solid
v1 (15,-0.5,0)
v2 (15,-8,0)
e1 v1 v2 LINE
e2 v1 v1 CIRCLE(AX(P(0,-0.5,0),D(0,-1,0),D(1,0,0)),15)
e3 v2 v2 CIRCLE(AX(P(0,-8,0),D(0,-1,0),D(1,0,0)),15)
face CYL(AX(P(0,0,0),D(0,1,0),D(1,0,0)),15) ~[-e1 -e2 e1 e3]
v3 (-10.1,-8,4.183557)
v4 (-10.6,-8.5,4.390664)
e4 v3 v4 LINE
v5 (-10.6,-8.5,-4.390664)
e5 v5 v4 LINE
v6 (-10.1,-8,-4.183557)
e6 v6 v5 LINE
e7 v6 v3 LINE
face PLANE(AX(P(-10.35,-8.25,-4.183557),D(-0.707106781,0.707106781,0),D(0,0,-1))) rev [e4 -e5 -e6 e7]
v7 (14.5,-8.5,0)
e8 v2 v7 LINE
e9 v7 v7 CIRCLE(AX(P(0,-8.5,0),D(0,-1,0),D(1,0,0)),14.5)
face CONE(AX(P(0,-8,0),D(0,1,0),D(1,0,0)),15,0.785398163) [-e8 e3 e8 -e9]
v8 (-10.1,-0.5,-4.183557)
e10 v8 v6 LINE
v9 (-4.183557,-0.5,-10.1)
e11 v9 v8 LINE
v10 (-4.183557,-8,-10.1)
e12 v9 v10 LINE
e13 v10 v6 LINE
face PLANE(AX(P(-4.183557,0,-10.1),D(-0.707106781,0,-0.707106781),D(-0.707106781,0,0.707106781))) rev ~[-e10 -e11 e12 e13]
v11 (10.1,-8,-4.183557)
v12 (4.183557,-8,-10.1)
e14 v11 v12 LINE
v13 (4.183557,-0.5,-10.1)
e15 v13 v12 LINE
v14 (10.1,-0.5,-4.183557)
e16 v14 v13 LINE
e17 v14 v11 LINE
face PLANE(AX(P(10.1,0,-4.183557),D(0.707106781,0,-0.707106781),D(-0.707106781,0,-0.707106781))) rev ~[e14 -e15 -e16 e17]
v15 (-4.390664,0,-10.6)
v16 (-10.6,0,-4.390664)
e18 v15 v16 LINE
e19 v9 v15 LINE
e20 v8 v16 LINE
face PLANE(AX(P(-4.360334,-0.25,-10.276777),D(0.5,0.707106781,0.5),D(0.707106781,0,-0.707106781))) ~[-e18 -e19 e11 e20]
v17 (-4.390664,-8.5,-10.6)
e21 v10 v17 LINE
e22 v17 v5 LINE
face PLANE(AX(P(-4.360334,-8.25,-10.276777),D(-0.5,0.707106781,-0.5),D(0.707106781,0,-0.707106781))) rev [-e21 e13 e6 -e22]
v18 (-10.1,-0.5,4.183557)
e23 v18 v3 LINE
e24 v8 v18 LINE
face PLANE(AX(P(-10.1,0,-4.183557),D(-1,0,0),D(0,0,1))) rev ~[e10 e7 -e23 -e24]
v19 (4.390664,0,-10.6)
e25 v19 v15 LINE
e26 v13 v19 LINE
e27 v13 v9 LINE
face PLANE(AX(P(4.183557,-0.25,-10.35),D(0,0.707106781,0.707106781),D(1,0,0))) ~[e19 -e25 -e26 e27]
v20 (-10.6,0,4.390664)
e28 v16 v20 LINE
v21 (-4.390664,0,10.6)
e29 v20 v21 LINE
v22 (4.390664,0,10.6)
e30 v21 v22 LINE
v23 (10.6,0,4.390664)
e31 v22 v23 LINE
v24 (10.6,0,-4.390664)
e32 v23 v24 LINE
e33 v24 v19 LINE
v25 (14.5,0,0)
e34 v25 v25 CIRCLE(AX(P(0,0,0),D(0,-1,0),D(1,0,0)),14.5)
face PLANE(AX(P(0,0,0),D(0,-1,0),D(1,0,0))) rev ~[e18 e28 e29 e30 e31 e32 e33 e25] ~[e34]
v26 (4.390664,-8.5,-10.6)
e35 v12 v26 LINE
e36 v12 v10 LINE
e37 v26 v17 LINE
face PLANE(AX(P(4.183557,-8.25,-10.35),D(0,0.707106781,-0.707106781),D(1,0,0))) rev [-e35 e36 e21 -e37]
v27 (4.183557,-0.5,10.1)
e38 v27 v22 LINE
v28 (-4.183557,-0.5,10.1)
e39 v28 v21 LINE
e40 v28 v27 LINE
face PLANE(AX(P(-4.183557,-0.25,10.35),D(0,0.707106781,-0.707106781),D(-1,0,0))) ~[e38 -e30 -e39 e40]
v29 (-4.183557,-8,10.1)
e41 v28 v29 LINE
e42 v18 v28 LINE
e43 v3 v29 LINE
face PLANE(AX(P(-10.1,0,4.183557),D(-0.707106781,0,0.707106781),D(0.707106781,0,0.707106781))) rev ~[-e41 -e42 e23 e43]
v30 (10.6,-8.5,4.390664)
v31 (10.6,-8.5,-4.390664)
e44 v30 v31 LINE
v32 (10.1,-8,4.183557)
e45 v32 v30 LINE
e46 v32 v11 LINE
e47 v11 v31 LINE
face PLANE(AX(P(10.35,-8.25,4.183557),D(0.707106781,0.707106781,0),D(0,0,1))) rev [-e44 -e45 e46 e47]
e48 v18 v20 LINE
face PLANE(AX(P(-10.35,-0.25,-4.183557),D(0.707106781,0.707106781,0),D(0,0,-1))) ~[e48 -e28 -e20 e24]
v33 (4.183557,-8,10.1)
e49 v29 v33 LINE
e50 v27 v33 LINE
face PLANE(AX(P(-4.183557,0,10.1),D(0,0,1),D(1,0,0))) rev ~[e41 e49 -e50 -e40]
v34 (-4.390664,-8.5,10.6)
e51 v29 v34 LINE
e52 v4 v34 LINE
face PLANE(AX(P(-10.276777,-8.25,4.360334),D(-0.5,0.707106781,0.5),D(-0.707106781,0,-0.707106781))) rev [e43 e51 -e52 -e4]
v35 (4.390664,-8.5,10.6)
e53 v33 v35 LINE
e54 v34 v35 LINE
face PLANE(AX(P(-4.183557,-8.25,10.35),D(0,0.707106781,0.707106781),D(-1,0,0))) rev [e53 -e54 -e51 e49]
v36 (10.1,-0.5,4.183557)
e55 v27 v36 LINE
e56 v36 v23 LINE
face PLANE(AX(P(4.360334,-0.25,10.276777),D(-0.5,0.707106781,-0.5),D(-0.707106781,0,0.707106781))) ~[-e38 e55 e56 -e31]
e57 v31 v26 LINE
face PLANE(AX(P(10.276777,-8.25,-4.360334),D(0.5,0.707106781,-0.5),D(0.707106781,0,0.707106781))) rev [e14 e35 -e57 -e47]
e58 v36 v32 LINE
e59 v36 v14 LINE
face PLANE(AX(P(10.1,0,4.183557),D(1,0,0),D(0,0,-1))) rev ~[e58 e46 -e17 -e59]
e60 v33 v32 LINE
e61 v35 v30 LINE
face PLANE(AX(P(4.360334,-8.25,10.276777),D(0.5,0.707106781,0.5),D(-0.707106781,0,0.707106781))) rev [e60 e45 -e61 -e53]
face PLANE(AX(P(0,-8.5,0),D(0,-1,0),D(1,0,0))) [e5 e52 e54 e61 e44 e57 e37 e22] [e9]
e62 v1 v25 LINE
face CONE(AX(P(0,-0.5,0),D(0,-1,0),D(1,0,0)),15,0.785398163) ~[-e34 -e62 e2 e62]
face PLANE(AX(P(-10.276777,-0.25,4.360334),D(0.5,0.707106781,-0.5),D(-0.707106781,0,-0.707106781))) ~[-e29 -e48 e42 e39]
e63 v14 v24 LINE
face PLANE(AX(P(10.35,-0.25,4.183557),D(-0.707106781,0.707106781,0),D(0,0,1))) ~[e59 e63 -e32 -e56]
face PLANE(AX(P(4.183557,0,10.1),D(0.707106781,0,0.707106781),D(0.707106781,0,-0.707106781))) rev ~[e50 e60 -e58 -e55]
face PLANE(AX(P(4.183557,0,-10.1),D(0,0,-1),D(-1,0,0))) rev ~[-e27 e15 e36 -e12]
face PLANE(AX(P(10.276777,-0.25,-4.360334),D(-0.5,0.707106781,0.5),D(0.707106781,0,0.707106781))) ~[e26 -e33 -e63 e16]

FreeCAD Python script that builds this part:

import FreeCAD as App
import Part
import Sketcher
from FreeCAD import Vector
Q = App.Units.Quantity


def edges_at(feature, points):
    """Names of the edges that pass closest to the given points."""
    edges = feature.Shape.Edges
    near = lambda p: min(range(len(edges)), key=lambda i: edges[i].distToShape(Part.Vertex(*p))[0])
    return sorted({f"Edge{near(p) + 1}" for p in points})


def add_polygon(sketch, points):
    """Adds a closed chain of lines whose ends are joined by coincident constraints."""
    first, n = sketch.GeometryCount, len(points)
    for a, b in zip(points, points[1:] + points[:1]):
        sketch.addGeometry(Part.LineSegment(App.Vector(*a, 0), App.Vector(*b, 0)), False)
    for i in range(n):
        sketch.addConstraint(Sketcher.Constraint("Coincident", first + i, 2, first + (i + 1) % n, 1))

doc = App.newDocument("Part")
params = doc.addObject("Spreadsheet::Sheet", "Params")
for row, (alias, value) in enumerate([
    ("sketch1_diameter", "30 mm"),
    ("pad1_length", "8.5 mm"),
    ("chamfer_size", "0.5 mm"),
], start=1):
    params.set(f"A{row}", alias)
    params.set(f"B{row}", "=" + value)
    params.setAlias(f"B{row}", alias)

body = doc.addObject("PartDesign::Body", "Body")

# Sketch on XZ plane
sketch1 = doc.addObject("Sketcher::SketchObject", "Sketch")
body.addObject(sketch1)
sketch1.AttachmentSupport = (doc.XZ_Plane, [""])
sketch1.MapMode = "FlatFace"
sketch1.addGeometry(Part.Circle(Vector(0, 0, 0), Vector(0, 0, 1), 15), False)  # 0
add_polygon(sketch1, [(4.183557, -10.1), (-4.183557, -10.1), (-10.1, -4.183557), (-10.1, 4.183557), (-4.183557, 10.1), (4.183557, 10.1), (10.1, 4.183557), (10.1, -4.183557)])  # lines 1-8
sketch1.addConstraint([
    Sketcher.Constraint("Horizontal", 1),
    Sketcher.Constraint("Vertical", 3),
    Sketcher.Constraint("Horizontal", 5),
    Sketcher.Constraint("Vertical", 7),
    Sketcher.Constraint("Coincident", 0, 3, -1, 1),
    Sketcher.Constraint("Symmetric", 1, 2, 5, 2, -1, 1),
    Sketcher.Constraint("Symmetric", 2, 2, 6, 2, -1, 1),
    Sketcher.Constraint("Perpendicular", 2, 4),
    Sketcher.Constraint("Perpendicular", 6, 8),
    Sketcher.Constraint("Horizontal", 3, 2, 6, 2),
    Sketcher.Constraint("Horizontal", 2, 2, 7, 2),
    Sketcher.Constraint("Vertical", 1, 2, 4, 2),
    Sketcher.Constraint("Equal", 5, 3),
    Sketcher.Constraint("Diameter", 0, Q("30 mm")),
    Sketcher.Constraint("DistanceY", 1, 2, -1, 1, Q("10.1 mm")),
    Sketcher.Constraint("DistanceX", 1, 2, 1, 1, Q("8.367114 mm")),
])
sketch1.setExpression("Constraints[21]", "Params.sketch1_diameter")
pad1 = doc.addObject("PartDesign::Pad", "Pad")
body.addObject(pad1)
pad1.Profile = sketch1
pad1.setExpression("Length", "Params.pad1_length")
doc.recompute()

chamfer = doc.addObject("PartDesign::Chamfer", "Chamfer")
body.addObject(chamfer)
chamfer.Base = (pad1, edges_at(pad1, [
    (-15, -8.5, 0),
    (0, -8.5, -10.1),
    (-7.142, -8.5, -7.142),
    (-10.1, -8.5, 0),
    (-7.142, -8.5, 7.142),
    (0, -8.5, 10.1),
    (7.142, -8.5, 7.142),
    (10.1, -8.5, 0),
    (7.142, -8.5, -7.142),
    (-15, 0, 0),
    (0, 0, -10.1),
    (-7.142, 0, -7.142),
    (-10.1, 0, 0),
    (-7.142, 0, 7.142),
    (0, 0, 10.1),
    (7.142, 0, 7.142),
    (10.1, 0, 0),
    (7.142, 0, -7.142),
]))
chamfer.setExpression("Size", "Params.chamfer_size")

doc.recompute()
